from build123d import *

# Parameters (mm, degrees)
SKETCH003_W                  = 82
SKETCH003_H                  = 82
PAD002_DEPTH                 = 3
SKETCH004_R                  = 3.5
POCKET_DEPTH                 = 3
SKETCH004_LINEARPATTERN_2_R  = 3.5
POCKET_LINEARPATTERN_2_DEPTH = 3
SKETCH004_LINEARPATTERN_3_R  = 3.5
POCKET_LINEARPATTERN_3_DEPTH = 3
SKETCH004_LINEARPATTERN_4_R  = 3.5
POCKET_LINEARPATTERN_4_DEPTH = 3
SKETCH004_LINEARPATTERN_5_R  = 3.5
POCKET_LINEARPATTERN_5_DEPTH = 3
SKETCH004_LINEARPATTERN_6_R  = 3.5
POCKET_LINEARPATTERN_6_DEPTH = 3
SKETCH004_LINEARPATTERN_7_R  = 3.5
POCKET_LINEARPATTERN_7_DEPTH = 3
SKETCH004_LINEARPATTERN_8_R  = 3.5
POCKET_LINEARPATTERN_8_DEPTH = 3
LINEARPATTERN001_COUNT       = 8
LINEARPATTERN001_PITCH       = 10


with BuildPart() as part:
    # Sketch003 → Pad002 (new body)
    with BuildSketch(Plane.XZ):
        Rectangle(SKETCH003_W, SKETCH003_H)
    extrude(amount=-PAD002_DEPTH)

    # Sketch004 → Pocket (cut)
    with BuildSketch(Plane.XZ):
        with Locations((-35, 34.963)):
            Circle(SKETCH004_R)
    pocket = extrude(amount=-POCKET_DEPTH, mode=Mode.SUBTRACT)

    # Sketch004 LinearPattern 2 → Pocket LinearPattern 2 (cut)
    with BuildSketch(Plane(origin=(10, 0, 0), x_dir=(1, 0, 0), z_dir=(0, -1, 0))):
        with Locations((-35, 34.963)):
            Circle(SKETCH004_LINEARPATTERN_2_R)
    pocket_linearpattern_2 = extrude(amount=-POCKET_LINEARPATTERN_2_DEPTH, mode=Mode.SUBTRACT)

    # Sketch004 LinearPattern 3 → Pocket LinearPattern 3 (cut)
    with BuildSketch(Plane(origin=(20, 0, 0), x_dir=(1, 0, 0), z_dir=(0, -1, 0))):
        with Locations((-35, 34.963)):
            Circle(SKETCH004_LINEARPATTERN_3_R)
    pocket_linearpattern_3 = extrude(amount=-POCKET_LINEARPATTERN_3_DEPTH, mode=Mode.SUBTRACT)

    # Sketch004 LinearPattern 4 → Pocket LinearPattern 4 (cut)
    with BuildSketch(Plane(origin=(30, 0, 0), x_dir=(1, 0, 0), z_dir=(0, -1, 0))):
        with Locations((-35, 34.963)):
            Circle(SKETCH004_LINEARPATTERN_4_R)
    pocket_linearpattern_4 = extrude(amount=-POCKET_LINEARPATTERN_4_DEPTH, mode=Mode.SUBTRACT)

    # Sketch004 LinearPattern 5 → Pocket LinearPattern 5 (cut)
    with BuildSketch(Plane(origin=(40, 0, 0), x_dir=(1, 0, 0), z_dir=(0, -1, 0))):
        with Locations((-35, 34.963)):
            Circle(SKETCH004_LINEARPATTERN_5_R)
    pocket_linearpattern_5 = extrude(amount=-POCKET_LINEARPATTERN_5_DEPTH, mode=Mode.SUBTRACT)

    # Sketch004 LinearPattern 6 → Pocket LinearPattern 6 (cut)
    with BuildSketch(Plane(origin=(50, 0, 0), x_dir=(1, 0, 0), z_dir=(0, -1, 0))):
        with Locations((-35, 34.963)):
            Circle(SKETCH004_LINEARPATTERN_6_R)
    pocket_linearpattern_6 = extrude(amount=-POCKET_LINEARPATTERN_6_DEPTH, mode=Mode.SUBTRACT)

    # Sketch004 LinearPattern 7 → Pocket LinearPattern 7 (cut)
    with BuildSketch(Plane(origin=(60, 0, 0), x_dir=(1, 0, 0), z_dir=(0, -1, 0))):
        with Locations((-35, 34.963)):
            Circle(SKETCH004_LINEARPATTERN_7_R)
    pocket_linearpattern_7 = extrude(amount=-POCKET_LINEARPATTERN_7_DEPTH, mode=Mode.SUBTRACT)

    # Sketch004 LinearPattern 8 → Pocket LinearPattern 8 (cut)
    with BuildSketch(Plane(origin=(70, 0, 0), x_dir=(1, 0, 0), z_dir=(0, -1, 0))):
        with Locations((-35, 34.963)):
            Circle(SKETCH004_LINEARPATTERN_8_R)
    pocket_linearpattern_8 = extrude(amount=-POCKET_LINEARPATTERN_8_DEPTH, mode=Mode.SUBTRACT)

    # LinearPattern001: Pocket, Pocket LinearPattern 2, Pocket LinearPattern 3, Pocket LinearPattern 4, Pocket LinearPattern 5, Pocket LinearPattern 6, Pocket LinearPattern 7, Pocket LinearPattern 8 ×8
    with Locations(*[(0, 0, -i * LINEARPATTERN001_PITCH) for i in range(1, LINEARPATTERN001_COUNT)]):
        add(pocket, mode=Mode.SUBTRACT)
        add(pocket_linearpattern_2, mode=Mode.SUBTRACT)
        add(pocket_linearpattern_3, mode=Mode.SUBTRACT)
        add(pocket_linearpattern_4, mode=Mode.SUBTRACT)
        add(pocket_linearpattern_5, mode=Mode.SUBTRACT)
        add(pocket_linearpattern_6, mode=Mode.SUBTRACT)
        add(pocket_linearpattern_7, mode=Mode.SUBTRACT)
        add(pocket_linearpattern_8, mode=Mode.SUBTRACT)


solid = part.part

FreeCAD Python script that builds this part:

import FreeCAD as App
import Part
import Sketcher
Q = App.Units.Quantity

doc = App.newDocument("Part")
body = doc.addObject("PartDesign::Body", "Body")

sketch1 = doc.addObject("Sketcher::SketchObject", "Sketch")
body.addObject(sketch1)
sketch1.AttachmentSupport = (doc.XZ_Plane, [""])
sketch1.MapMode = "FlatFace"
sketch1.addGeometry([
    Part.LineSegment(App.Vector(-41, 41, 0), App.Vector(-41, -41, 0)),
    Part.LineSegment(App.Vector(-41, -41, 0), App.Vector(41, -41, 0)),
    Part.LineSegment(App.Vector(41, -41, 0), App.Vector(41, 41, 0)),
    Part.LineSegment(App.Vector(41, 41, 0), App.Vector(-41, 41, 0)),
], False)
sketch1.addConstraint([
    Sketcher.Constraint("Coincident", 0, 2, 1, 1),
    Sketcher.Constraint("Coincident", 1, 2, 2, 1),
    Sketcher.Constraint("Coincident", 2, 2, 3, 1),
    Sketcher.Constraint("Coincident", 3, 2, 0, 1),
    Sketcher.Constraint("Vertical", 0),
    Sketcher.Constraint("Horizontal", 1),
    Sketcher.Constraint("Vertical", 2),
    Sketcher.Constraint("Horizontal", 3),
    Sketcher.Constraint("Symmetric", 0, 2, 2, 2, -1, 1),
    Sketcher.Constraint("Equal", 3, 0),
    Sketcher.Constraint("DistanceX", 1, 1, 1, 2, Q("82 mm")),
])
pad1 = doc.addObject("PartDesign::Pad", "Pad")
body.addObject(pad1)
pad1.Profile = sketch1
pad1.Length = 3
pad1.Reversed = True

sketch2 = doc.addObject("Sketcher::SketchObject", "Sketch001")
body.addObject(sketch2)
sketch2.AttachmentSupport = (doc.XZ_Plane, [""])
sketch2.MapMode = "FlatFace"
sketch2.addGeometry(Part.Circle(App.Vector(-35, 34.963, 0), App.Vector(0, 0, 1), 3.5), False)
sketch2.addConstraint([
    Sketcher.Constraint("Diameter", 0, Q("7 mm")),
    Sketcher.Constraint("DistanceX", 0, 3, -1, 1, Q("35 mm")),
    Sketcher.Constraint("DistanceY", -1, 1, 0, 3, Q("34.963 mm")),
])
pocket1 = doc.addObject("PartDesign::Pocket", "Pocket")
body.addObject(pocket1)
pocket1.Profile = sketch2
pocket1.Length = 3

sketch3 = doc.addObject("Sketcher::SketchObject", "Sketch002")
body.addObject(sketch3)
sketch3.AttachmentSupport = (doc.XZ_Plane, [""])
sketch3.MapMode = "FlatFace"
sketch3.addGeometry(Part.Circle(App.Vector(-25, 34.963, 0), App.Vector(0, 0, 1), 3.5), False)
sketch3.addConstraint([
    Sketcher.Constraint("Diameter", 0, Q("7 mm")),
    Sketcher.Constraint("DistanceX", 0, 3, -1, 1, Q("25 mm")),
    Sketcher.Constraint("DistanceY", -1, 1, 0, 3, Q("34.963 mm")),
])
pocket2 = doc.addObject("PartDesign::Pocket", "Pocket001")
body.addObject(pocket2)
pocket2.Profile = sketch3
pocket2.Length = 3

sketch4 = doc.addObject("Sketcher::SketchObject", "Sketch003")
body.addObject(sketch4)
sketch4.AttachmentSupport = (doc.XZ_Plane, [""])
sketch4.MapMode = "FlatFace"
sketch4.addGeometry(Part.Circle(App.Vector(-15, 34.963, 0), App.Vector(0, 0, 1), 3.5), False)
sketch4.addConstraint([
    Sketcher.Constraint("Diameter", 0, Q("7 mm")),
    Sketcher.Constraint("DistanceX", 0, 3, -1, 1, Q("15 mm")),
    Sketcher.Constraint("DistanceY", -1, 1, 0, 3, Q("34.963 mm")),
])
pocket3 = doc.addObject("PartDesign::Pocket", "Pocket002")
body.addObject(pocket3)
pocket3.Profile = sketch4
pocket3.Length = 3

sketch5 = doc.addObject("Sketcher::SketchObject", "Sketch004")
body.addObject(sketch5)
sketch5.AttachmentSupport = (doc.XZ_Plane, [""])
sketch5.MapMode = "FlatFace"
sketch5.addGeometry(Part.Circle(App.Vector(-5, 34.963, 0), App.Vector(0, 0, 1), 3.5), False)
sketch5.addConstraint([
    Sketcher.Constraint("Diameter", 0, Q("7 mm")),
    Sketcher.Constraint("DistanceX", 0, 3, -1, 1, Q("5 mm")),
    Sketcher.Constraint("DistanceY", -1, 1, 0, 3, Q("34.963 mm")),
])
pocket4 = doc.addObject("PartDesign::Pocket", "Pocket003")
body.addObject(pocket4)
pocket4.Profile = sketch5
pocket4.Length = 3

sketch6 = doc.addObject("Sketcher::SketchObject", "Sketch005")
body.addObject(sketch6)
sketch6.AttachmentSupport = (doc.XZ_Plane, [""])
sketch6.MapMode = "FlatFace"
sketch6.addGeometry(Part.Circle(App.Vector(5, 34.963, 0), App.Vector(0, 0, 1), 3.5), False)
sketch6.addConstraint([
    Sketcher.Constraint("Diameter", 0, Q("7 mm")),
    Sketcher.Constraint("DistanceX", -1, 1, 0, 3, Q("5 mm")),
    Sketcher.Constraint("DistanceY", -1, 1, 0, 3, Q("34.963 mm")),
])
pocket5 = doc.addObject("PartDesign::Pocket", "Pocket004")
body.addObject(pocket5)
pocket5.Profile = sketch6
pocket5.Length = 3

sketch7 = doc.addObject("Sketcher::SketchObject", "Sketch006")
body.addObject(sketch7)
sketch7.AttachmentSupport = (doc.XZ_Plane, [""])
sketch7.MapMode = "FlatFace"
sketch7.addGeometry(Part.Circle(App.Vector(15, 34.963, 0), App.Vector(0, 0, 1), 3.5), False)
sketch7.addConstraint([
    Sketcher.Constraint("Diameter", 0, Q("7 mm")),
    Sketcher.Constraint("DistanceX", -1, 1, 0, 3, Q("15 mm")),
    Sketcher.Constraint("DistanceY", -1, 1, 0, 3, Q("34.963 mm")),
])
pocket6 = doc.addObject("PartDesign::Pocket", "Pocket005")
body.addObject(pocket6)
pocket6.Profile = sketch7
pocket6.Length = 3

sketch8 = doc.addObject("Sketcher::SketchObject", "Sketch007")
body.addObject(sketch8)
sketch8.AttachmentSupport = (doc.XZ_Plane, [""])
sketch8.MapMode = "FlatFace"
sketch8.addGeometry(Part.Circle(App.Vector(25, 34.963, 0), App.Vector(0, 0, 1), 3.5), False)
sketch8.addConstraint([
    Sketcher.Constraint("Diameter", 0, Q("7 mm")),
    Sketcher.Constraint("DistanceX", -1, 1, 0, 3, Q("25 mm")),
    Sketcher.Constraint("DistanceY", -1, 1, 0, 3, Q("34.963 mm")),
])
pocket7 = doc.addObject("PartDesign::Pocket", "Pocket006")
body.addObject(pocket7)
pocket7.Profile = sketch8
pocket7.Length = 3

sketch9 = doc.addObject("Sketcher::SketchObject", "Sketch008")
body.addObject(sketch9)
sketch9.AttachmentSupport = (doc.XZ_Plane, [""])
sketch9.MapMode = "FlatFace"
sketch9.addGeometry(Part.Circle(App.Vector(35, 34.963, 0), App.Vector(0, 0, 1), 3.5), False)
sketch9.addConstraint([
    Sketcher.Constraint("Diameter", 0, Q("7 mm")),
    Sketcher.Constraint("DistanceX", -1, 1, 0, 3, Q("35 mm")),
    Sketcher.Constraint("DistanceY", -1, 1, 0, 3, Q("34.963 mm")),
])
pocket8 = doc.addObject("PartDesign::Pocket", "Pocket007")
body.addObject(pocket8)
pocket8.Profile = sketch9
pocket8.Length = 3
doc.recompute()

linearpattern = doc.addObject("PartDesign::LinearPattern", "LinearPattern")
body.addObject(linearpattern)
linearpattern.Originals = [pocket1, pocket2, pocket3, pocket4, pocket5, pocket6, pocket7, pocket8]
linearpattern.Direction = (doc.Z_Axis, [""])
linearpattern.Mode = "offset"
linearpattern.Offset = 10
linearpattern.Occurrences = 8
linearpattern.Reversed = True
body.Tip = linearpattern

doc.recompute()
